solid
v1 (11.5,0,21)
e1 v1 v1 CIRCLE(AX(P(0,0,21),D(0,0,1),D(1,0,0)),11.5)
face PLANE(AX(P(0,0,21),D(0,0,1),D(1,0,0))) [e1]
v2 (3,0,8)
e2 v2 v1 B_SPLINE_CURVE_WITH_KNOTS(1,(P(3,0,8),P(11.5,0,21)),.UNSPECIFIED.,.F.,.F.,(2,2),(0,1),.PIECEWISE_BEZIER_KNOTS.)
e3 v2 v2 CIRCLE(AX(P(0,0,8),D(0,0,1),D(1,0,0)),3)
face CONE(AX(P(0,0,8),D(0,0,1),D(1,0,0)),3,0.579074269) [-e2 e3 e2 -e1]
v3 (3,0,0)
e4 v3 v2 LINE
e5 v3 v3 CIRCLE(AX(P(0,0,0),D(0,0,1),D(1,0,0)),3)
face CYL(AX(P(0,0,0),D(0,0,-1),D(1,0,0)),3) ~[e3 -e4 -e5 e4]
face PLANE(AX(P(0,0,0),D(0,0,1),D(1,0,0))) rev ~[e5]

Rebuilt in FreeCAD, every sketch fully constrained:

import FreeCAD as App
import Part
import Sketcher
from FreeCAD import Vector

doc = App.newDocument("Part")
body = doc.addObject("PartDesign::Body", "Body")

# Sketch on XY plane
sketch1 = body.newObject("Sketcher::SketchObject", "Sketch")
sketch1.AttachmentSupport = (doc.getObject("XY_Plane"), [""])
sketch1.MapMode = "FlatFace"
sketch1.addGeometry(Part.Circle(Vector(0, 0, 0), Vector(0, 0, 1), 3), False)
sketch1.addConstraint(Sketcher.Constraint("Coincident", 0, 3, -1, 1))
sketch1.addConstraint(Sketcher.Constraint("Diameter", 0, 6.0))
pad1 = body.newObject("PartDesign::Pad", "Pad")
pad1.Profile = sketch1
pad1.Length = 8

# Sketch on XY plane
sketch2 = body.newObject("Sketcher::SketchObject", "Sketch001")
sketch2.AttachmentSupport = (doc.getObject("XY_Plane"), [""])
sketch2.MapMode = "FlatFace"
sketch2.AttachmentOffset = App.Placement(Vector(0, 0, 8), App.Rotation())
sketch2.addGeometry(Part.Circle(Vector(0, 0, 0), Vector(0, 0, 1), 3), False)
sketch2.addConstraint(Sketcher.Constraint("Coincident", 0, 3, -1, 1))
sketch2.addConstraint(Sketcher.Constraint("Diameter", 0, 6.0))

# Sketch on XY plane
sketch3 = body.newObject("Sketcher::SketchObject", "Sketch002")
sketch3.AttachmentSupport = (doc.getObject("XY_Plane"), [""])
sketch3.MapMode = "FlatFace"
sketch3.AttachmentOffset = App.Placement(Vector(0, 0, 21), App.Rotation())
sketch3.addGeometry(Part.Circle(Vector(0, 0, 0), Vector(0, 0, 1), 12), False)
sketch3.addConstraint(Sketcher.Constraint("Coincident", 0, 3, -1, 1))
sketch3.addConstraint(Sketcher.Constraint("Diameter", 0, 23.0))

additiveloft = body.newObject("PartDesign::AdditiveLoft", "AdditiveLoft")
additiveloft.Profile = sketch2
additiveloft.Sections = [sketch3]

doc.recompute()
